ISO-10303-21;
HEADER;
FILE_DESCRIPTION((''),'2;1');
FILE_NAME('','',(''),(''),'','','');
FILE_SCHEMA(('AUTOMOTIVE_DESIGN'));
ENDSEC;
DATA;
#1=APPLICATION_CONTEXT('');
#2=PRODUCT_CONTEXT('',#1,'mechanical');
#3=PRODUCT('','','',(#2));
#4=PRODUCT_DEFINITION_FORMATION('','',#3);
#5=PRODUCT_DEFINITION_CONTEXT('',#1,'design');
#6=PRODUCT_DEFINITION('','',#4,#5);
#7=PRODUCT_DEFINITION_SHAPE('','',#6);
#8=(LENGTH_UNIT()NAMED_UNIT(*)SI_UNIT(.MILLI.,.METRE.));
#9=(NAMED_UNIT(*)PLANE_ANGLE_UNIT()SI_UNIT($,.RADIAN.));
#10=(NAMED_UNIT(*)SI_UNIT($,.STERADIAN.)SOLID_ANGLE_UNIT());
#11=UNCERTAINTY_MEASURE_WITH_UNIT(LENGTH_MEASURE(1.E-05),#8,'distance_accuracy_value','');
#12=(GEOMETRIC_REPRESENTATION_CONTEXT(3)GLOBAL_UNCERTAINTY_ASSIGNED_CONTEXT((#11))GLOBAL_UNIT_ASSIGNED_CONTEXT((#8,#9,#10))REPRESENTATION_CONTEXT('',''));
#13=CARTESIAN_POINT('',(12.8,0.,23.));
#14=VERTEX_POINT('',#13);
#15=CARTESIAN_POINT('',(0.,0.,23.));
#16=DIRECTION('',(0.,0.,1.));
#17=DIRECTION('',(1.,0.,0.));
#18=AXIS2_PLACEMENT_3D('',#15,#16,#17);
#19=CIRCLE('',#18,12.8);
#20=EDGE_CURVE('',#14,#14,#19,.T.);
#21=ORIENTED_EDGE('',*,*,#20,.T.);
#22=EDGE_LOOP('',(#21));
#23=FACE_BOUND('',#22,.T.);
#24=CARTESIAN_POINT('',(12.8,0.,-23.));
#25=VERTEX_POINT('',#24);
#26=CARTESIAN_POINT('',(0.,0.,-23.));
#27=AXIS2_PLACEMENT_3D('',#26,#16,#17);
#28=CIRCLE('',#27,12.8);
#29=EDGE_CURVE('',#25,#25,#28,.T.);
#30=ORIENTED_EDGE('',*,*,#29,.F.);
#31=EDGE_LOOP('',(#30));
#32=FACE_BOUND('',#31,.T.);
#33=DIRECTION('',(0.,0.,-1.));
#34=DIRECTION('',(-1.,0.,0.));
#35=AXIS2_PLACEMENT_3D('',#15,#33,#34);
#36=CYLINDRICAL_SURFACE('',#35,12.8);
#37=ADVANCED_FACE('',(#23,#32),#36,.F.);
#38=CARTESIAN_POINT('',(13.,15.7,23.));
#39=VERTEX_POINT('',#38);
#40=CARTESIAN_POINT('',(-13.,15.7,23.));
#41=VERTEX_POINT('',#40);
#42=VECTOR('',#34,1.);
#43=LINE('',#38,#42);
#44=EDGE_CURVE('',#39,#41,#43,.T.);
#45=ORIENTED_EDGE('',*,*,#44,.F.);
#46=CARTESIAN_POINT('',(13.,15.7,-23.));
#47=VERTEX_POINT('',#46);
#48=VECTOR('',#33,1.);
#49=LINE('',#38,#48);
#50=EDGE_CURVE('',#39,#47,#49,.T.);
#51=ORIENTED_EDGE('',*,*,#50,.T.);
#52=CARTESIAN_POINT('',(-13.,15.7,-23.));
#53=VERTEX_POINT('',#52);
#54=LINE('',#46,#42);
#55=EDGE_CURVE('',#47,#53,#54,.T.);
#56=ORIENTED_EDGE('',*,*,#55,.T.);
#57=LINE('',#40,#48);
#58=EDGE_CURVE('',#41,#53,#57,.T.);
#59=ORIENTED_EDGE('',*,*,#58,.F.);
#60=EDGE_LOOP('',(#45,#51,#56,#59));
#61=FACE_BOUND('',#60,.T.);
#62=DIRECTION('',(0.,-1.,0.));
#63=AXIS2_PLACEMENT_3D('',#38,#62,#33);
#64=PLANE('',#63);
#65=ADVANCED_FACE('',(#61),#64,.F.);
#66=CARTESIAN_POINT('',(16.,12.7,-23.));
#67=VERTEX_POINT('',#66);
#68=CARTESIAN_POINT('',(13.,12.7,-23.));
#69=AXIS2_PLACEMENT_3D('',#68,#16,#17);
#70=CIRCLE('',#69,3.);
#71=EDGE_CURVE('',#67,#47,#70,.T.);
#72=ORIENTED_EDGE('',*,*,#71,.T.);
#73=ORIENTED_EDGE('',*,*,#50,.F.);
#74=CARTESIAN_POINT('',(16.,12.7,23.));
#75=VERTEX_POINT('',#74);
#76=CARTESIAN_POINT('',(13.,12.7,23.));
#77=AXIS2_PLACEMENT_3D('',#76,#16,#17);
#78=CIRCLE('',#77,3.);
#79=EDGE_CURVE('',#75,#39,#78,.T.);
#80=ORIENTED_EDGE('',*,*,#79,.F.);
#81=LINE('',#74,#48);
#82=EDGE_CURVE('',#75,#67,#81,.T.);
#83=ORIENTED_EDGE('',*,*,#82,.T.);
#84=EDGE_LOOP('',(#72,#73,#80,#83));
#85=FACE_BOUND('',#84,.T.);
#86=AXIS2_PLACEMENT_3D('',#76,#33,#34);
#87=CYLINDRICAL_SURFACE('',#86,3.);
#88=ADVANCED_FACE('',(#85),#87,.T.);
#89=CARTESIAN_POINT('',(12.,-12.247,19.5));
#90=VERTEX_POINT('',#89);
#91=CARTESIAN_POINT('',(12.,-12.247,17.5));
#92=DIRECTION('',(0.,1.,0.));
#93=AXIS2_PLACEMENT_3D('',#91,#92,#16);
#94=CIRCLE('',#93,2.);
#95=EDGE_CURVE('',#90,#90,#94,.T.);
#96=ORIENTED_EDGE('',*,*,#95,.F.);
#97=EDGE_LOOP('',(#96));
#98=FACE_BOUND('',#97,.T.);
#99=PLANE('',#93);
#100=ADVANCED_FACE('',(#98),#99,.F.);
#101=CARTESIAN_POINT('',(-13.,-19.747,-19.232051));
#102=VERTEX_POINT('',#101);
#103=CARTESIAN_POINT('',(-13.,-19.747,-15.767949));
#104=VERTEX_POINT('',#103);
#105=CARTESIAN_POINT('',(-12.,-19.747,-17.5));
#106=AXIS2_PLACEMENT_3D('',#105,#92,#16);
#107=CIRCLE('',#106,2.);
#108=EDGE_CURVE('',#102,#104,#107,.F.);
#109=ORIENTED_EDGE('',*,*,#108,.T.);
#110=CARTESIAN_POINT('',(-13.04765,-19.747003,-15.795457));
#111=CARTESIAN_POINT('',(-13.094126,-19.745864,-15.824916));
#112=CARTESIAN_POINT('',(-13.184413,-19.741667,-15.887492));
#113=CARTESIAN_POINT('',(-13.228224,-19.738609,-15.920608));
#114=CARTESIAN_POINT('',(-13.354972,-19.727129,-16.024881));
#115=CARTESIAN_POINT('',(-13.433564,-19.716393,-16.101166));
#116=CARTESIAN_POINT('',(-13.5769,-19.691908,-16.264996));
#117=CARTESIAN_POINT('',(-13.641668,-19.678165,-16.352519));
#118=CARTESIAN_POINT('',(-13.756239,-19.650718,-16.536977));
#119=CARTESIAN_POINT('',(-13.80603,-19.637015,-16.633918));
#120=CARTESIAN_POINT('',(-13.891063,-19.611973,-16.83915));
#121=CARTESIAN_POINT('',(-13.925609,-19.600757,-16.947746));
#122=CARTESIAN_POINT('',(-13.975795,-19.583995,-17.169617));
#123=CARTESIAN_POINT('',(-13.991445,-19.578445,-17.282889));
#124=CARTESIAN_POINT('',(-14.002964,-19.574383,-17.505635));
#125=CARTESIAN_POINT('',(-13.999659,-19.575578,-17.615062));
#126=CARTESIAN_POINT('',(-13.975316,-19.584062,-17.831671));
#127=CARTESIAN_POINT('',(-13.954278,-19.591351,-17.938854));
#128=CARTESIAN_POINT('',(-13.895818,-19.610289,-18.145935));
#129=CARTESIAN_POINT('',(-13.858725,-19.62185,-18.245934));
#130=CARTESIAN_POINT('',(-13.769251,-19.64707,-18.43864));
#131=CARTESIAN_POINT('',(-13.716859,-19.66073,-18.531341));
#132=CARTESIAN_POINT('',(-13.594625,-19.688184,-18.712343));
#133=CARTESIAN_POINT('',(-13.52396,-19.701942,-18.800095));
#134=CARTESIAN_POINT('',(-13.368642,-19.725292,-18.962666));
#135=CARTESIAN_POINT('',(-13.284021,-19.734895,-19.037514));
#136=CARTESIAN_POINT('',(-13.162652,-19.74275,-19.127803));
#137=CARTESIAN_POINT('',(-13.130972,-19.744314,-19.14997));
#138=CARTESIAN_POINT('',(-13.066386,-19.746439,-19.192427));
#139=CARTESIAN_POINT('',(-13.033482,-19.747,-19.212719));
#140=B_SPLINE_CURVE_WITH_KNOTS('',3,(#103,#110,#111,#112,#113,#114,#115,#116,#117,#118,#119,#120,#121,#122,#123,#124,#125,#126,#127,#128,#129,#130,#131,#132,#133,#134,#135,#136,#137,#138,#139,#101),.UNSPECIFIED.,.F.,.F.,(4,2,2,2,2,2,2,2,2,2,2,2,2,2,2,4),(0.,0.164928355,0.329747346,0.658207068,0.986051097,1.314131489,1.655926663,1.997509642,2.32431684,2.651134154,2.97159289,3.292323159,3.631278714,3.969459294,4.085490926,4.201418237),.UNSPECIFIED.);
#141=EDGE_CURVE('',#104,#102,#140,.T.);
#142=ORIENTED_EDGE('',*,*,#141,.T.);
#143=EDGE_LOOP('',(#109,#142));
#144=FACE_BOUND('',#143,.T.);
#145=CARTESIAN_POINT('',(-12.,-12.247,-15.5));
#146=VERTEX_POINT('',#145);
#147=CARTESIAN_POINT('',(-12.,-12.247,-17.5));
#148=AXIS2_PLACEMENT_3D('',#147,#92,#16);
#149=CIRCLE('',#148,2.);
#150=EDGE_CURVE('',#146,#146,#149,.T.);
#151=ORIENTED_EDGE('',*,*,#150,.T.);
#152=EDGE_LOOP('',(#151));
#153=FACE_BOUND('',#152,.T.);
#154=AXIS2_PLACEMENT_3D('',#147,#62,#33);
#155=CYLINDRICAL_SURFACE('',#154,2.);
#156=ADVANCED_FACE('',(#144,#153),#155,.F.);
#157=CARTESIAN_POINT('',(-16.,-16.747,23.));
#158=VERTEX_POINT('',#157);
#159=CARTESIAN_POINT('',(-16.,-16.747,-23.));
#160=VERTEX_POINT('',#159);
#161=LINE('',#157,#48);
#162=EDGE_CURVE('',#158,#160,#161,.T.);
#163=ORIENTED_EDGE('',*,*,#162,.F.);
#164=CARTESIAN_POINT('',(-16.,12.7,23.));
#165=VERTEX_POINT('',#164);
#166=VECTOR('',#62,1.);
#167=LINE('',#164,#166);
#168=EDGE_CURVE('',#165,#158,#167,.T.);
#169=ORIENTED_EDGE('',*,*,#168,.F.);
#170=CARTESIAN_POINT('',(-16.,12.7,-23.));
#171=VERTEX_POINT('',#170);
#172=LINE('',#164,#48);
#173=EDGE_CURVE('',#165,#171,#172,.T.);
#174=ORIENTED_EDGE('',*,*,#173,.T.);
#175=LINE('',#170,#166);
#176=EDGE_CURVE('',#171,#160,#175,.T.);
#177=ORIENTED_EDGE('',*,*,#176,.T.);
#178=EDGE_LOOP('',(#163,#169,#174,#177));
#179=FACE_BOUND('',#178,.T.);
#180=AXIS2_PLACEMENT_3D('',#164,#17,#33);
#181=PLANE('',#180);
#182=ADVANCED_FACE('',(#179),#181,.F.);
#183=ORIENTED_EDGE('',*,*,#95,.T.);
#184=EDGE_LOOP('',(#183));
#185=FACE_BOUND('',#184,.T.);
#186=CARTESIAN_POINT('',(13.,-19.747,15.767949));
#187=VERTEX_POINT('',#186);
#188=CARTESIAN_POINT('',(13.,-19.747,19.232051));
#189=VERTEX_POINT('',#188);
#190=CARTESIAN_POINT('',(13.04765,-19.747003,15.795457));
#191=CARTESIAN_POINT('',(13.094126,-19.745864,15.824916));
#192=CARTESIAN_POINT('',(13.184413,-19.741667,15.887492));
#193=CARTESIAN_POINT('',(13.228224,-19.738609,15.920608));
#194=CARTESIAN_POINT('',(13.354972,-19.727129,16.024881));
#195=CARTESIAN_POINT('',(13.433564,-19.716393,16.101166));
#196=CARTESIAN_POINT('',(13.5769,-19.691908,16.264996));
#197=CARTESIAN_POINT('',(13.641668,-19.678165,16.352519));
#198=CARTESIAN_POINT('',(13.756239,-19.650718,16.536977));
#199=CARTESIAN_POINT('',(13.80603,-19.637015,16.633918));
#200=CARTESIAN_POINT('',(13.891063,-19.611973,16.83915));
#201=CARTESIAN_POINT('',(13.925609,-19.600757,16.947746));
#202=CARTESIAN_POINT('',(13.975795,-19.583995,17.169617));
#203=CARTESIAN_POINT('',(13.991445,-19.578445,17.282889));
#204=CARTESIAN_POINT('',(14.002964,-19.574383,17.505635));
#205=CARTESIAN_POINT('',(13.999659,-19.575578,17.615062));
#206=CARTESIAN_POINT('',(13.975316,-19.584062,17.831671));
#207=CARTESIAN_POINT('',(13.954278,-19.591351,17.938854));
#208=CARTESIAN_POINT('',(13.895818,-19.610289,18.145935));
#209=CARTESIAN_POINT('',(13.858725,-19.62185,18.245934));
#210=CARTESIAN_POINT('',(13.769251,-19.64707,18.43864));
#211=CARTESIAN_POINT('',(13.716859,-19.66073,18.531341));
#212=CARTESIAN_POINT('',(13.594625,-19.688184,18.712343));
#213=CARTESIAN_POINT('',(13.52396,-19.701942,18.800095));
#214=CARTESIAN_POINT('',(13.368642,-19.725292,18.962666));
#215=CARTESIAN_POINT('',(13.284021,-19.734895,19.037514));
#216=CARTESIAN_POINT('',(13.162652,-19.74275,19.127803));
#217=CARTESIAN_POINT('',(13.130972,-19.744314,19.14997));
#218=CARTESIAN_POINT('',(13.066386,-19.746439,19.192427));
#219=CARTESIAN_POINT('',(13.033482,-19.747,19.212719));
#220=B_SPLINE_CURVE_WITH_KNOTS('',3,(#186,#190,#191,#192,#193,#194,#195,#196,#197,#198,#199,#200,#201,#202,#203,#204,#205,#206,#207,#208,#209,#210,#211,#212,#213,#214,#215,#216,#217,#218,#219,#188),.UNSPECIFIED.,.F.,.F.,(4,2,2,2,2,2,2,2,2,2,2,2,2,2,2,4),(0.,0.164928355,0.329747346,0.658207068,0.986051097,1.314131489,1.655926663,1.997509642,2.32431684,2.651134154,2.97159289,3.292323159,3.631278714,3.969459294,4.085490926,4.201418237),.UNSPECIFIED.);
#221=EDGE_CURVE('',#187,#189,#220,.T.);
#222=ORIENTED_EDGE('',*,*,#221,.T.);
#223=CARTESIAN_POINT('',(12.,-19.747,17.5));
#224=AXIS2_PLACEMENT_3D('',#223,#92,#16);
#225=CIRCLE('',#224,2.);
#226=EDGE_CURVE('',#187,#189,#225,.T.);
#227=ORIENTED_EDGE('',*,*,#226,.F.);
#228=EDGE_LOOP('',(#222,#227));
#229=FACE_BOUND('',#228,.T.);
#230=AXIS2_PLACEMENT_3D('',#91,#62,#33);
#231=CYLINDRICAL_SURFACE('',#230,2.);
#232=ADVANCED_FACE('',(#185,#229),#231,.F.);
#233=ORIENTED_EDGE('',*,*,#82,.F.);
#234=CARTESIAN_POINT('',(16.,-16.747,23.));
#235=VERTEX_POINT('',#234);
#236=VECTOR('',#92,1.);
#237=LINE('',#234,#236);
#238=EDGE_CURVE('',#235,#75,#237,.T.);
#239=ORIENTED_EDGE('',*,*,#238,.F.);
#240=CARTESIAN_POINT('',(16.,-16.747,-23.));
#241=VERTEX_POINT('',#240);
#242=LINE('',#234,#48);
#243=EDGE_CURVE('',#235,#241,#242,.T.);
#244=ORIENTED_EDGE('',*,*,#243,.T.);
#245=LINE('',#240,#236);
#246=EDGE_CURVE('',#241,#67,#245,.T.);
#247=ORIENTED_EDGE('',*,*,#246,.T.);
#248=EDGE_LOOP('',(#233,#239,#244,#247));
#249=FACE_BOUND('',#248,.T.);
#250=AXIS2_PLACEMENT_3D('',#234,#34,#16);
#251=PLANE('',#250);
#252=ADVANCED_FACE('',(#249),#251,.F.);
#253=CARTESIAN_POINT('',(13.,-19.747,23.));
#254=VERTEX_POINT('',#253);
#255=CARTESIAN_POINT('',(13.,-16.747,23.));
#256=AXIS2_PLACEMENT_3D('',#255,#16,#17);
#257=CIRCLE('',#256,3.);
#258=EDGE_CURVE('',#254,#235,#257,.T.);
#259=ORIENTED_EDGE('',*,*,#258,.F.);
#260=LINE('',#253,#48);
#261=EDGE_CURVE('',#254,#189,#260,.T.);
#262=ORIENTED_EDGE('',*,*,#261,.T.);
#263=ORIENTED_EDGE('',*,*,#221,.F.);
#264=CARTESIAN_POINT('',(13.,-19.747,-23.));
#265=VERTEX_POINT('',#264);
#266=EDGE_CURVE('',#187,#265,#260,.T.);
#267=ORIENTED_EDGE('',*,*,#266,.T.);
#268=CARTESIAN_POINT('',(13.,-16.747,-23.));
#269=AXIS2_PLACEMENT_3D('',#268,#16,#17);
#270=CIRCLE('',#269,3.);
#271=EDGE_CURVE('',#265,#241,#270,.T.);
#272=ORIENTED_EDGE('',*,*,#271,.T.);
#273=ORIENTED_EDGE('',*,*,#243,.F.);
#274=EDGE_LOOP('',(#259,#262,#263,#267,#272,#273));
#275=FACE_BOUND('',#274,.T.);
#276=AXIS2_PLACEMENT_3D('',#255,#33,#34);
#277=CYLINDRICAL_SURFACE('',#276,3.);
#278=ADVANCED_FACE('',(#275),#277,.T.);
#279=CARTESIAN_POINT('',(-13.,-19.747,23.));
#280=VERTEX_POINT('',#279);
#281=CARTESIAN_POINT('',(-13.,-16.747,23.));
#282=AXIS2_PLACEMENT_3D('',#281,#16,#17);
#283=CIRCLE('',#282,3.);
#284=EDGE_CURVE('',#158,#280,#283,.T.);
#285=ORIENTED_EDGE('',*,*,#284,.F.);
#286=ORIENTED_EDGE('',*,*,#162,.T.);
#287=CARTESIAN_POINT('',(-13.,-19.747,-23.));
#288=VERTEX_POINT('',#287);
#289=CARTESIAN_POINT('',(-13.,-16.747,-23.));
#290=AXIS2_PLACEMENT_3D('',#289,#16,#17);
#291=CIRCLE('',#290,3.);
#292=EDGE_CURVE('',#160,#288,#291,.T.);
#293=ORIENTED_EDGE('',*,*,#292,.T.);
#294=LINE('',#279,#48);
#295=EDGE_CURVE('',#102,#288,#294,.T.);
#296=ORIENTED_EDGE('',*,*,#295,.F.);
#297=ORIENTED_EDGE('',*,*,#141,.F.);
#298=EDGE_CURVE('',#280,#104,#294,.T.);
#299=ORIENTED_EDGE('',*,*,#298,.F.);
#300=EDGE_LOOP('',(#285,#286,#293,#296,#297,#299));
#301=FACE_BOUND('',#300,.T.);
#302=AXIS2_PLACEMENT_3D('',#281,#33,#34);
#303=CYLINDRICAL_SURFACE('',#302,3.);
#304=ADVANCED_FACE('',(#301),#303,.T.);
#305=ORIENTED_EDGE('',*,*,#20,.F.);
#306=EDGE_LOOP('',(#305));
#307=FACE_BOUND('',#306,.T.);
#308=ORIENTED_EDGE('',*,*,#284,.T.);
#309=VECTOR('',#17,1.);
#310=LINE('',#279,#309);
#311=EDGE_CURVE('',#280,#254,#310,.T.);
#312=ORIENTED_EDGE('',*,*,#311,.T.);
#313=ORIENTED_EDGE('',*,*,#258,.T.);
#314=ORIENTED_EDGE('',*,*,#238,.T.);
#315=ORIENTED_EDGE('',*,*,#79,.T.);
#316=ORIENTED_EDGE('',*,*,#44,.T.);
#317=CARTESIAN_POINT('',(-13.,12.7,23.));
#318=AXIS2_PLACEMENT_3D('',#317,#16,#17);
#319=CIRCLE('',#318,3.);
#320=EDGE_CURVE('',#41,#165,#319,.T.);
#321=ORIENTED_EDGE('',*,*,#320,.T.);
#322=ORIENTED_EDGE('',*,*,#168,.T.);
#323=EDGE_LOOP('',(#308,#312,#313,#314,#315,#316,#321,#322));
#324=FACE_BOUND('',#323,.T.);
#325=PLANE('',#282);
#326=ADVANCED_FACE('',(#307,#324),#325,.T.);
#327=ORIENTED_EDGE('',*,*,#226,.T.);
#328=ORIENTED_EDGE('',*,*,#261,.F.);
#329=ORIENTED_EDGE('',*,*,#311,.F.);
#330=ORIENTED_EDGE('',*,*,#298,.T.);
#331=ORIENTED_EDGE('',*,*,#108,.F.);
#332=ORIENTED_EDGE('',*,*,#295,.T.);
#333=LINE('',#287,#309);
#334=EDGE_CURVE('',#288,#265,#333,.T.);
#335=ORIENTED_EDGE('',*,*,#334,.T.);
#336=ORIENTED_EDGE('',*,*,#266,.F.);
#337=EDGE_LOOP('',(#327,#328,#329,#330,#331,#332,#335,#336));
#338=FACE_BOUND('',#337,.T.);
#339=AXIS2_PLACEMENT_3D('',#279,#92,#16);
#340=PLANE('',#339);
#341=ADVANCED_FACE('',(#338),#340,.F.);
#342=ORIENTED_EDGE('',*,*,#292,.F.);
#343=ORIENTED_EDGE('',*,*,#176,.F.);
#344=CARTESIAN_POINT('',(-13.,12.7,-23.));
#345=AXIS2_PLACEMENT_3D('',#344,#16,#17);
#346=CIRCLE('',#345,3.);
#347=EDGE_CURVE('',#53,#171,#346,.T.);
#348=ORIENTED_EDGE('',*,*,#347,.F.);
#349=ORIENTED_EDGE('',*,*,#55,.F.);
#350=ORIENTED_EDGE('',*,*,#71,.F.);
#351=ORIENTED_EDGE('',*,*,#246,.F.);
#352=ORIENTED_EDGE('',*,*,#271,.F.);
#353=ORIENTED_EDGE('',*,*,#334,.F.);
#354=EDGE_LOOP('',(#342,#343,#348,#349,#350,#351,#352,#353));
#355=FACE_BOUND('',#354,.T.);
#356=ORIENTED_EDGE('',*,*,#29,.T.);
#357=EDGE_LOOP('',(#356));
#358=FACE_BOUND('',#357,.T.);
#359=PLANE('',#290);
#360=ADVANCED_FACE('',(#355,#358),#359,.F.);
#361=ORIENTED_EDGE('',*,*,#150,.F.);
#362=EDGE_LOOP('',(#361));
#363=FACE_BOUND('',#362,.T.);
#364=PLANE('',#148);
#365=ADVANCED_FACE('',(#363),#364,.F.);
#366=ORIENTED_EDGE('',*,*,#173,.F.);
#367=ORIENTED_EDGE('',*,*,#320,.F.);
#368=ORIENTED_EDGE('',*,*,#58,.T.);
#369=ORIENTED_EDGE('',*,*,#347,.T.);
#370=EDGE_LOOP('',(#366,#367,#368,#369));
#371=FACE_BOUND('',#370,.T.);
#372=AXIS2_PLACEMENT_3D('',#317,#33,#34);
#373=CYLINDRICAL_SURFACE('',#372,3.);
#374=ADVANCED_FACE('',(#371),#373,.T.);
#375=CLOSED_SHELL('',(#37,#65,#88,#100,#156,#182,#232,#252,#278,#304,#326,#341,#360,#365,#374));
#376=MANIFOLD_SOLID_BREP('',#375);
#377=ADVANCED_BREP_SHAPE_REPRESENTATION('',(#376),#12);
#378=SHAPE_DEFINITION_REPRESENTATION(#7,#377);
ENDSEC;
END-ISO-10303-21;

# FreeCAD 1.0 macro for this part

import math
import FreeCAD as App
import Part
import Sketcher

V = App.Vector
Q = App.Units.Quantity

doc = App.newDocument("Part")
params = doc.addObject("Spreadsheet::Sheet", "Params")
for row, (alias, value) in enumerate([
    ("sketch1_radius", "3 mm"),
    ("sketch1_diameter", "25.6 mm"),
    ("sketch1_width", "26 mm"),
    ("pad1_length", "46 mm"),
    ("sketch2_diameter", "4 mm"),
    ("pocket1_length", "7.5 mm"),
], start=1):
    params.set(f"A{row}", alias)
    params.set(f"B{row}", "=" + value)
    params.setAlias(f"B{row}", alias)

body = doc.addObject("PartDesign::Body", "Body")

sketch1 = body.newObject("Sketcher::SketchObject", "Sketch")
sketch1.AttachmentSupport = (doc.getObject("XY_Plane"), [""])
sketch1.MapMode = "FlatFace"
sketch1.addGeometry([
    Part.LineSegment(V(-13, -19.7, 0), V(13, -19.7, 0)),
    Part.ArcOfCircle(Part.Circle(V(13, -16.7, 0), V(0, 0, 1), 3), math.radians(-90), math.radians(0)),
    Part.LineSegment(V(16, -16.7, 0), V(16, 12.7, 0)),
    Part.ArcOfCircle(Part.Circle(V(13, 12.7, 0), V(0, 0, 1), 3), math.radians(0), math.radians(90)),
    Part.LineSegment(V(13, 15.7, 0), V(-13, 15.7, 0)),
    Part.ArcOfCircle(Part.Circle(V(-13, 12.7, 0), V(0, 0, 1), 3), math.radians(90), math.radians(180)),
    Part.LineSegment(V(-16, 12.7, 0), V(-16, -16.7, 0)),
    Part.ArcOfCircle(Part.Circle(V(-13, -16.7, 0), V(0, 0, 1), 3), math.radians(180), math.radians(270)),
    Part.Circle(V(0, 0, 0), V(0, 0, 1), 12.8),
], False)
sketch1.addConstraint([
    Sketcher.Constraint("Tangent", 0, 2, 1, 1),
    Sketcher.Constraint("Tangent", 1, 2, 2, 1),
    Sketcher.Constraint("Tangent", 2, 2, 3, 1),
    Sketcher.Constraint("Tangent", 3, 2, 4, 1),
    Sketcher.Constraint("Tangent", 4, 2, 5, 1),
    Sketcher.Constraint("Tangent", 5, 2, 6, 1),
    Sketcher.Constraint("Tangent", 6, 2, 7, 1),
    Sketcher.Constraint("Tangent", 7, 2, 0, 1),
    Sketcher.Constraint("Horizontal", 0),
    Sketcher.Constraint("Vertical", 2),
    Sketcher.Constraint("Horizontal", 4),
    Sketcher.Constraint("Vertical", 6),
    Sketcher.Constraint("Coincident", 8, 3, -1, 1),
    Sketcher.Constraint("Equal", 1, 3),
    Sketcher.Constraint("Equal", 3, 5),
    Sketcher.Constraint("Equal", 5, 7),
    Sketcher.Constraint("Radius", 1, Q("3 mm")),
    Sketcher.Constraint("Diameter", 8, Q("25.6 mm")),
    Sketcher.Constraint("DistanceX", 0, 1, 0, 2, Q("26 mm")),
    Sketcher.Constraint("DistanceX", -1, 1, 1, 3, Q("13 mm")),
    Sketcher.Constraint("DistanceY", -1, 1, 3, 3, Q("12.7 mm")),
    Sketcher.Constraint("DistanceY", 2, 1, 2, 2, Q("29.447 mm")),
])
sketch1.setExpression("Constraints[16]", "Params.sketch1_radius")
sketch1.setExpression("Constraints[17]", "Params.sketch1_diameter")
sketch1.setExpression("Constraints[18]", "Params.sketch1_width")
pad1 = body.newObject("PartDesign::Pad", "Pad")
pad1.Profile = sketch1
pad1.setExpression("Length", "Params.pad1_length")
pad1.Midplane = True

sketch2 = body.newObject("Sketcher::SketchObject", "Sketch001")
sketch2.AttachmentSupport = (doc.getObject("XZ_Plane"), [""])
sketch2.MapMode = "FlatFace"
sketch2.AttachmentOffset = App.Placement(V(0, 0, 19.747), App.Rotation())
sketch2.addGeometry([
    Part.Circle(V(12, 17.5, 0), V(0, 0, 1), 2),
    Part.Circle(V(-12, -17.5, 0), V(0, 0, 1), 2),
], False)
sketch2.addConstraint([
    Sketcher.Constraint("Equal", 0, 1),
    Sketcher.Constraint("Symmetric", 0, 3, 1, 3, -1, 1),
    Sketcher.Constraint("Diameter", 0, Q("4 mm")),
    Sketcher.Constraint("DistanceX", -1, 1, 0, 3, Q("12 mm")),
    Sketcher.Constraint("DistanceY", 1, 3, 0, 3, Q("35 mm")),
])
sketch2.setExpression("Constraints[2]", "Params.sketch2_diameter")
pocket1 = body.newObject("PartDesign::Pocket", "Pocket")
pocket1.Profile = sketch2
pocket1.setExpression("Length", "Params.pocket1_length")

doc.recompute()
